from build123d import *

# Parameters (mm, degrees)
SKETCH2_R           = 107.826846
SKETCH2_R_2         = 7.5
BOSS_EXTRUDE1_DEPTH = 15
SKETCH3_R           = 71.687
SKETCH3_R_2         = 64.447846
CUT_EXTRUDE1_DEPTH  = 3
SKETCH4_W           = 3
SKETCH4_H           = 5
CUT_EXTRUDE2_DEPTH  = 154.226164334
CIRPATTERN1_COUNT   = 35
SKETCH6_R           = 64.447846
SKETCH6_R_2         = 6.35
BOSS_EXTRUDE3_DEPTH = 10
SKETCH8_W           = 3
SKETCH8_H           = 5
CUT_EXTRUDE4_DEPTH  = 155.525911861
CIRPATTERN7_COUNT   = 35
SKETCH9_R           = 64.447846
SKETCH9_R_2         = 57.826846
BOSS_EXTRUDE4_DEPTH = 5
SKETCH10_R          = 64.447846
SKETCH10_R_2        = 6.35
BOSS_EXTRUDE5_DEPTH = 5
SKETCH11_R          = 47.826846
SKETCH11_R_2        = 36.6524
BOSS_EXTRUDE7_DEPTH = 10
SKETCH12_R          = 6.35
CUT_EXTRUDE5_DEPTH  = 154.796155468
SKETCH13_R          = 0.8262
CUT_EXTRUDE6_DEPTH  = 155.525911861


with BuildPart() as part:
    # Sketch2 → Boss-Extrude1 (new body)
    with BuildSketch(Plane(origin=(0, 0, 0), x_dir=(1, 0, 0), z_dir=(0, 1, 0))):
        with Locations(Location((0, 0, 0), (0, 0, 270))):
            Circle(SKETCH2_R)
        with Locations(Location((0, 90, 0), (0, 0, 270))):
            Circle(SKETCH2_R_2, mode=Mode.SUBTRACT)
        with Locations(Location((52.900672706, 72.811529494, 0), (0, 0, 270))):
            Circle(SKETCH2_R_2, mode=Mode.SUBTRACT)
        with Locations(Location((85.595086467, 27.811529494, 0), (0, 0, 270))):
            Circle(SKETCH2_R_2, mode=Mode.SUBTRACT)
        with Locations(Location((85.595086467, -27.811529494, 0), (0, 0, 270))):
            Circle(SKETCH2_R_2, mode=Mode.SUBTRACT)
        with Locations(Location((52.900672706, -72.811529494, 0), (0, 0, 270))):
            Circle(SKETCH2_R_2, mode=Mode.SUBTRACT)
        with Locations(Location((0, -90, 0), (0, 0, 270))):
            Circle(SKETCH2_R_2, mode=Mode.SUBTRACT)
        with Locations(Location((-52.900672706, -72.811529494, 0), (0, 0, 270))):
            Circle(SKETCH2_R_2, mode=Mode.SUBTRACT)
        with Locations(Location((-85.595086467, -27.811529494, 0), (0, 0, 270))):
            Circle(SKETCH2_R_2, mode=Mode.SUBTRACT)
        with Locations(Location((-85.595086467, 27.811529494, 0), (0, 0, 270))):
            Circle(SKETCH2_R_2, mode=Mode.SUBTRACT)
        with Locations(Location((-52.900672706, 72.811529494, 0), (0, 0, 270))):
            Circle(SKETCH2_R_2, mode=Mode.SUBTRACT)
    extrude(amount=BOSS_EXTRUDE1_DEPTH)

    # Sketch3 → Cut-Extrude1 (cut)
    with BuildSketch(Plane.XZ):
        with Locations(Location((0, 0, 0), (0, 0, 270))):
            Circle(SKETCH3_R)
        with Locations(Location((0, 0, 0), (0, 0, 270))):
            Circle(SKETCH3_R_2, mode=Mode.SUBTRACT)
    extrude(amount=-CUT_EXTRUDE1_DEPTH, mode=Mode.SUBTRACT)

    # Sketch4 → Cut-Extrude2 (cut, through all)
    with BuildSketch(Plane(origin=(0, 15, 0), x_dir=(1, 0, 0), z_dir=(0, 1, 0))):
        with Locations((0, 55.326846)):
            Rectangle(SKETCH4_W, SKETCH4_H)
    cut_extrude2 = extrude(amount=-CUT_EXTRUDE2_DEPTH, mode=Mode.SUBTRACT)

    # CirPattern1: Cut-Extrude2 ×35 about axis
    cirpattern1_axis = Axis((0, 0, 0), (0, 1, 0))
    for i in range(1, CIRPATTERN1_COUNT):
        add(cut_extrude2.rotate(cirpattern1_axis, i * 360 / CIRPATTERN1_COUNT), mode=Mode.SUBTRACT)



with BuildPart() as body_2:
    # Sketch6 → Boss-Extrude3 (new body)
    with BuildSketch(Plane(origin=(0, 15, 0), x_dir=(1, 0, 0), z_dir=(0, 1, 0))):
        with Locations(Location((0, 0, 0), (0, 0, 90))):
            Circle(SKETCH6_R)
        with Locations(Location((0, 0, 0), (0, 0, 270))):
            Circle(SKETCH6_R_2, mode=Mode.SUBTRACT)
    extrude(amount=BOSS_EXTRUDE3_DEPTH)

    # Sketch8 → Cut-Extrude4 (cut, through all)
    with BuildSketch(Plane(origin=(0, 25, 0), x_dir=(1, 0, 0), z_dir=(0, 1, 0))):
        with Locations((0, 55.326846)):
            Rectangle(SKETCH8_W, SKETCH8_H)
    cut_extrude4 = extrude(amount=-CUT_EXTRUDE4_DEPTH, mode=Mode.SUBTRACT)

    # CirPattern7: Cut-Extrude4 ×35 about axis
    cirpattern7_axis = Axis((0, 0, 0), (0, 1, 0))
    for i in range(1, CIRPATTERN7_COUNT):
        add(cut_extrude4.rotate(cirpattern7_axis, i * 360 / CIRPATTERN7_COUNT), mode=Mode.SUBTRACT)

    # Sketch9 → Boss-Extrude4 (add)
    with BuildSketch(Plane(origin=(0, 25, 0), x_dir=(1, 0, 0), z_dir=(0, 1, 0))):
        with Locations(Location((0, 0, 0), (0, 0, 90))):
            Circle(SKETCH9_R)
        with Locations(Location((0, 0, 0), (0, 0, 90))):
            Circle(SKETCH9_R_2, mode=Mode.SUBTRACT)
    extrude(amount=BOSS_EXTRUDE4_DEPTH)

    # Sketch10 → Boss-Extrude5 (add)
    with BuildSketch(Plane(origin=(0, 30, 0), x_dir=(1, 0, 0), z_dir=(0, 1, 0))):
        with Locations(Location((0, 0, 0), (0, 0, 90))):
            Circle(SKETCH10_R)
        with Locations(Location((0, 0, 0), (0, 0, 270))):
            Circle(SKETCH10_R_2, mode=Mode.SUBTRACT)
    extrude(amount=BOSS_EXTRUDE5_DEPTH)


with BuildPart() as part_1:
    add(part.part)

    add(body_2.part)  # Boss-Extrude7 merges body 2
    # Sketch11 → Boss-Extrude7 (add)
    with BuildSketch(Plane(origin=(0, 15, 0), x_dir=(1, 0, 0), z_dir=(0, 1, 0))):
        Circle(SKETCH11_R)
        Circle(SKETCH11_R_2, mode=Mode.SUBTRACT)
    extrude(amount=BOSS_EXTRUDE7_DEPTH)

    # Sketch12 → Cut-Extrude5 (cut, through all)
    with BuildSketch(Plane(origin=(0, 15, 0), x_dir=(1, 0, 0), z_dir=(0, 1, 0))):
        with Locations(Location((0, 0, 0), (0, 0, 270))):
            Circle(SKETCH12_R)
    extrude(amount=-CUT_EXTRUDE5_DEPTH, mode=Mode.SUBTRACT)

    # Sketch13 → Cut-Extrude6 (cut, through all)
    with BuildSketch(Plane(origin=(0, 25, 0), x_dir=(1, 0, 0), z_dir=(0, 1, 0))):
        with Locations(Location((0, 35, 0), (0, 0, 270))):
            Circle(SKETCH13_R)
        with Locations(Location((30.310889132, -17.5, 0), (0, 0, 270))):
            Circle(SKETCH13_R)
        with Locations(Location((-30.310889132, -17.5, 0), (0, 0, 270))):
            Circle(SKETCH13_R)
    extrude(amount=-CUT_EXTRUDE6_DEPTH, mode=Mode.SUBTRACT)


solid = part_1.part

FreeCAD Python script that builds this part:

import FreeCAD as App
import Part
import Sketcher
from FreeCAD import Vector


def add_polygon(sketch, points):
    """Adds a closed chain of lines whose ends are joined by coincident constraints."""
    first, n = sketch.GeometryCount, len(points)
    for a, b in zip(points, points[1:] + points[:1]):
        sketch.addGeometry(Part.LineSegment(App.Vector(*a, 0), App.Vector(*b, 0)), False)
    for i in range(n):
        sketch.addConstraint(Sketcher.Constraint("Coincident", first + i, 2, first + (i + 1) % n, 1))

doc = App.newDocument("Part")
params = doc.addObject("Spreadsheet::Sheet", "Params")
for row, (alias, value) in enumerate([
    ("sketch1_diameter", "15 mm"),
    ("pad1_length", "15 mm"),
    ("pocket1_length", "3 mm"),
    ("sketch3_width", "3 mm"),
    ("sketch3_height", "5 mm"),
    ("sketch4_diameter", "12.7 mm"),
    ("pad2_length", "10 mm"),
    ("sketch5_width", "3 mm"),
    ("sketch5_height", "5 mm"),
    ("pad3_length", "5 mm"),
    ("sketch7_diameter", "12.7 mm"),
    ("pad4_length", "5 mm"),
    ("pad5_length", "10 mm"),
    ("sketch9_diameter", "12.7 mm"),
], start=1):
    params.set(f"A{row}", alias)
    params.set(f"B{row}", "=" + value)
    params.setAlias(f"B{row}", alias)

body = doc.addObject("PartDesign::Body", "Body")

# Sketch on XZ plane
sketch1 = body.newObject("Sketcher::SketchObject", "Sketch")
sketch1.AttachmentSupport = (doc.getObject("XZ_Plane"), [""])
sketch1.MapMode = "FlatFace"
sketch1.addGeometry([
    Part.Circle(Vector(0, 0, 0), Vector(0, 0, 1), 107.826846),  # 0
    Part.Circle(Vector(-52.900673, -72.811529, 0), Vector(0, 0, 1), 7.5),  # 1
    Part.Circle(Vector(-85.595086, -27.811529, 0), Vector(0, 0, 1), 7.5),  # 2
    Part.Circle(Vector(0, -90, 0), Vector(0, 0, 1), 7.5),  # 3
    Part.Circle(Vector(-85.595086, 27.811529, 0), Vector(0, 0, 1), 7.5),  # 4
    Part.Circle(Vector(-52.900673, 72.811529, 0), Vector(0, 0, 1), 7.5),  # 5
    Part.Circle(Vector(52.900673, -72.811529, 0), Vector(0, 0, 1), 7.5),  # 6
    Part.Circle(Vector(85.595086, -27.811529, 0), Vector(0, 0, 1), 7.5),  # 7
    Part.Circle(Vector(0, 90, 0), Vector(0, 0, 1), 7.5),  # 8
    Part.Circle(Vector(85.595086, 27.811529, 0), Vector(0, 0, 1), 7.5),  # 9
    Part.Circle(Vector(52.900673, 72.811529, 0), Vector(0, 0, 1), 7.5),  # 10
], False)
sketch1.addConstraint([
    Sketcher.Constraint("Coincident", 0, 3, -1, 1),
    Sketcher.Constraint("Equal", 1, 2),
    Sketcher.Constraint("Equal", 2, 3),
    Sketcher.Constraint("Equal", 3, 4),
    Sketcher.Constraint("Equal", 4, 5),
    Sketcher.Constraint("Equal", 5, 6),
    Sketcher.Constraint("Equal", 6, 7),
    Sketcher.Constraint("Equal", 7, 8),
    Sketcher.Constraint("Equal", 8, 9),
    Sketcher.Constraint("Equal", 9, 10),
    Sketcher.Constraint("Symmetric", 5, 3, 6, 3, -1, 1),
    Sketcher.Constraint("Symmetric", 4, 3, 7, 3, -1, 1),
    Sketcher.Constraint("Symmetric", 3, 3, 8, 3, -1, 1),
    Sketcher.Constraint("Symmetric", 2, 3, 9, 3, -1, 1),
    Sketcher.Constraint("Symmetric", 1, 3, 10, 3, -1, 1),
    Sketcher.Constraint("Symmetric", 1, 3, 6, 3, -2),
    Sketcher.Constraint("Symmetric", 2, 3, 7, 3, -2),
    Sketcher.Constraint("PointOnObject", 3, 3, -2),
    Sketcher.Constraint("Diameter", 1, 15.0),
    Sketcher.Constraint("DistanceY", 3, 3, -1, 1, 90.0),
    Sketcher.Constraint("DistanceY", 1, 3, 2, 3, 45.0),
    Sketcher.Constraint("Diameter", 0, 215.653692),
    Sketcher.Constraint("DistanceY", 1, 3, -1, 1, 72.811529),
    Sketcher.Constraint("DistanceX", 2, 3, 6, 3, 138.495759),
    Sketcher.Constraint("DistanceX", 1, 3, -1, 1, 52.900673),
])
sketch1.setExpression("Constraints[18]", "Params.sketch1_diameter")
pad1 = body.newObject("PartDesign::Pad", "Pad")
pad1.Profile = sketch1
pad1.setExpression("Length", "Params.pad1_length")
pad1.Reversed = True

# Sketch on XZ plane
sketch2 = body.newObject("Sketcher::SketchObject", "Sketch001")
sketch2.AttachmentSupport = (doc.getObject("XZ_Plane"), [""])
sketch2.MapMode = "FlatFace"
sketch2.addGeometry([
    Part.Circle(Vector(0, 0, 0), Vector(0, 0, 1), 71.687),
    Part.Circle(Vector(0, 0, 0), Vector(0, 0, 1), 64.447846),
], False)
sketch2.addConstraint([
    Sketcher.Constraint("Coincident", 0, 3, -1, 1),
    Sketcher.Constraint("Coincident", 1, 3, -1, 1),
    Sketcher.Constraint("Diameter", 0, 143.374),
    Sketcher.Constraint("Diameter", 1, 128.895692),
])
pocket1 = body.newObject("PartDesign::Pocket", "Pocket")
pocket1.Profile = sketch2
pocket1.setExpression("Length", "Params.pocket1_length")

# Sketch on XZ plane
sketch3 = body.newObject("Sketcher::SketchObject", "Sketch002")
sketch3.AttachmentSupport = (doc.getObject("XZ_Plane"), [""])
sketch3.MapMode = "FlatFace"
sketch3.AttachmentOffset = App.Placement(Vector(0, 0, -15), App.Rotation())
add_polygon(sketch3, [(-1.5, -57.826846), (-1.5, -52.826846), (1.5, -52.826846), (1.5, -57.826846)])  # lines 0-3
sketch3.addConstraint([
    Sketcher.Constraint("Vertical", 0),
    Sketcher.Constraint("Horizontal", 1),
    Sketcher.Constraint("Vertical", 2),
    Sketcher.Constraint("Horizontal", 3),
    Sketcher.Constraint("DistanceX", 1, 1, 1, 2, 3.0),
    Sketcher.Constraint("DistanceY", 0, 1, 0, 2, 5.0),
    Sketcher.Constraint("DistanceX", 0, 2, -1, 1, 1.5),
    Sketcher.Constraint("DistanceY", 0, 2, -1, 1, 52.826846),
])
sketch3.setExpression("Constraints[8]", "Params.sketch3_width")
sketch3.setExpression("Constraints[9]", "Params.sketch3_height")
pocket2 = body.newObject("PartDesign::Pocket", "Pocket001")
pocket2.Profile = sketch3
pocket2.Type = "ThroughAll"
pocket2.Reversed = True
doc.recompute()

polarpattern = body.newObject("PartDesign::PolarPattern", "PolarPattern")
polarpattern.Originals = [pocket2]
polarpattern.Axis = (doc.getObject("Y_Axis"), [""])
polarpattern.Angle = 360
polarpattern.Occurrences = 35
body.Tip = polarpattern
body2 = doc.addObject("PartDesign::Body", "Body001")

# Sketch on XZ plane
sketch4 = body2.newObject("Sketcher::SketchObject", "Sketch003")
sketch4.AttachmentSupport = (doc.getObject("XZ_Plane001"), [""])
sketch4.MapMode = "FlatFace"
sketch4.AttachmentOffset = App.Placement(Vector(0, 0, -15), App.Rotation())
sketch4.addGeometry([
    Part.Circle(Vector(0, 0, 0), Vector(0, 0, 1), 64.447846),
    Part.Circle(Vector(0, 0, 0), Vector(0, 0, 1), 6.35),
], False)
sketch4.addConstraint([
    Sketcher.Constraint("Coincident", 0, 3, -1, 1),
    Sketcher.Constraint("Coincident", 1, 3, -1, 1),
    Sketcher.Constraint("Diameter", 1, 12.7),
    Sketcher.Constraint("Diameter", 0, 128.895692),
])
sketch4.setExpression("Constraints[2]", "Params.sketch4_diameter")
pad2 = body2.newObject("PartDesign::Pad", "Pad001")
pad2.Profile = sketch4
pad2.setExpression("Length", "Params.pad2_length")
pad2.Reversed = True

# Sketch on XZ plane
sketch5 = body2.newObject("Sketcher::SketchObject", "Sketch004")
sketch5.AttachmentSupport = (doc.getObject("XZ_Plane001"), [""])
sketch5.MapMode = "FlatFace"
sketch5.AttachmentOffset = App.Placement(Vector(0, 0, -25), App.Rotation())
add_polygon(sketch5, [(-1.5, -57.826846), (-1.5, -52.826846), (1.5, -52.826846), (1.5, -57.826846)])  # lines 0-3
sketch5.addConstraint([
    Sketcher.Constraint("Vertical", 0),
    Sketcher.Constraint("Horizontal", 1),
    Sketcher.Constraint("Vertical", 2),
    Sketcher.Constraint("Horizontal", 3),
    Sketcher.Constraint("DistanceX", 1, 1, 1, 2, 3.0),
    Sketcher.Constraint("DistanceY", 0, 1, 0, 2, 5.0),
    Sketcher.Constraint("DistanceX", 0, 2, -1, 1, 1.5),
    Sketcher.Constraint("DistanceY", 0, 2, -1, 1, 52.826846),
])
sketch5.setExpression("Constraints[8]", "Params.sketch5_width")
sketch5.setExpression("Constraints[9]", "Params.sketch5_height")
pocket3 = body2.newObject("PartDesign::Pocket", "Pocket002")
pocket3.Profile = sketch5
pocket3.Type = "ThroughAll"
pocket3.Reversed = True
doc.recompute()

polarpattern2 = body2.newObject("PartDesign::PolarPattern", "PolarPattern001")
polarpattern2.Originals = [pocket3]
polarpattern2.Axis = (doc.getObject("Y_Axis001"), [""])
polarpattern2.Angle = 360
polarpattern2.Occurrences = 35
body2.Tip = polarpattern2

# Sketch on XZ plane
sketch6 = body2.newObject("Sketcher::SketchObject", "Sketch005")
sketch6.AttachmentSupport = (doc.getObject("XZ_Plane001"), [""])
sketch6.MapMode = "FlatFace"
sketch6.AttachmentOffset = App.Placement(Vector(0, 0, -25), App.Rotation())
sketch6.addGeometry([
    Part.Circle(Vector(0, 0, 0), Vector(0, 0, 1), 64.447846),
    Part.Circle(Vector(0, 0, 0), Vector(0, 0, 1), 57.826846),
], False)
sketch6.addConstraint([
    Sketcher.Constraint("Coincident", 0, 3, -1, 1),
    Sketcher.Constraint("Coincident", 1, 3, -1, 1),
    Sketcher.Constraint("Diameter", 0, 128.895692),
    Sketcher.Constraint("Diameter", 1, 115.653692),
])
pad3 = body2.newObject("PartDesign::Pad", "Pad002")
pad3.Profile = sketch6
pad3.setExpression("Length", "Params.pad3_length")
pad3.Reversed = True

# Sketch on XZ plane
sketch7 = body2.newObject("Sketcher::SketchObject", "Sketch006")
sketch7.AttachmentSupport = (doc.getObject("XZ_Plane001"), [""])
sketch7.MapMode = "FlatFace"
sketch7.AttachmentOffset = App.Placement(Vector(0, 0, -30), App.Rotation())
sketch7.addGeometry([
    Part.Circle(Vector(0, 0, 0), Vector(0, 0, 1), 64.447846),
    Part.Circle(Vector(0, 0, 0), Vector(0, 0, 1), 6.35),
], False)
sketch7.addConstraint([
    Sketcher.Constraint("Coincident", 0, 3, -1, 1),
    Sketcher.Constraint("Coincident", 1, 3, -1, 1),
    Sketcher.Constraint("Diameter", 1, 12.7),
    Sketcher.Constraint("Diameter", 0, 128.895692),
])
sketch7.setExpression("Constraints[2]", "Params.sketch7_diameter")
pad4 = body2.newObject("PartDesign::Pad", "Pad003")
pad4.Profile = sketch7
pad4.setExpression("Length", "Params.pad4_length")
pad4.Reversed = True
doc.recompute()

boolean = body.newObject("PartDesign::Boolean", "Boolean")
boolean.Type = "Fuse"
boolean.addObjects([body2])

# Sketch on XZ plane
sketch8 = body.newObject("Sketcher::SketchObject", "Sketch007")
sketch8.AttachmentSupport = (doc.getObject("XZ_Plane"), [""])
sketch8.MapMode = "FlatFace"
sketch8.AttachmentOffset = App.Placement(Vector(0, 0, -15), App.Rotation())
sketch8.addGeometry([
    Part.Circle(Vector(0, 0, 0), Vector(0, 0, 1), 47.826846),
    Part.Circle(Vector(0, 0, 0), Vector(0, 0, 1), 36.6524),
], False)
sketch8.addConstraint([
    Sketcher.Constraint("Coincident", 0, 3, -1, 1),
    Sketcher.Constraint("Coincident", 1, 3, -1, 1),
    Sketcher.Constraint("Diameter", 1, 73.3048),
    Sketcher.Constraint("Diameter", 0, 95.653692),
])
pad5 = body.newObject("PartDesign::Pad", "Pad004")
pad5.Profile = sketch8
pad5.setExpression("Length", "Params.pad5_length")
pad5.Reversed = True

# Sketch on XZ plane
sketch9 = body.newObject("Sketcher::SketchObject", "Sketch008")
sketch9.AttachmentSupport = (doc.getObject("XZ_Plane"), [""])
sketch9.MapMode = "FlatFace"
sketch9.AttachmentOffset = App.Placement(Vector(0, 0, -15), App.Rotation())
sketch9.addGeometry(Part.Circle(Vector(0, 0, 0), Vector(0, 0, 1), 6.35), False)
sketch9.addConstraint([
    Sketcher.Constraint("Coincident", 0, 3, -1, 1),
    Sketcher.Constraint("Diameter", 0, 12.7),
])
sketch9.setExpression("Constraints[1]", "Params.sketch9_diameter")
pocket4 = body.newObject("PartDesign::Pocket", "Pocket003")
pocket4.Profile = sketch9
pocket4.Type = "ThroughAll"
pocket4.Reversed = True

# Sketch on XZ plane
sketch10 = body.newObject("Sketcher::SketchObject", "Sketch009")
sketch10.AttachmentSupport = (doc.getObject("XZ_Plane"), [""])
sketch10.MapMode = "FlatFace"
sketch10.AttachmentOffset = App.Placement(Vector(0, 0, -25), App.Rotation())
sketch10.addGeometry([
    Part.Circle(Vector(0, -35, 0), Vector(0, 0, 1), 0.8262),
    Part.Circle(Vector(30.310889, 17.5, 0), Vector(0, 0, 1), 0.8262),
    Part.Circle(Vector(-30.310889, 17.5, 0), Vector(0, 0, 1), 0.8262),
], False)
sketch10.addConstraint([
    Sketcher.Constraint("Equal", 0, 1),
    Sketcher.Constraint("Equal", 1, 2),
    Sketcher.Constraint("Symmetric", 1, 3, 2, 3, -2),
    Sketcher.Constraint("PointOnObject", 0, 3, -2),
    Sketcher.Constraint("DistanceY", 0, 3, -1, 1, 35.0),
    Sketcher.Constraint("Diameter", 0, 1.6524),
    Sketcher.Constraint("DistanceY", -1, 1, 1, 3, 17.5),
    Sketcher.Constraint("DistanceX", -1, 1, 1, 3, 30.310889),
])
pocket5 = body.newObject("PartDesign::Pocket", "Pocket004")
pocket5.Profile = sketch10
pocket5.Type = "ThroughAll"
pocket5.Reversed = True

doc.recompute()
